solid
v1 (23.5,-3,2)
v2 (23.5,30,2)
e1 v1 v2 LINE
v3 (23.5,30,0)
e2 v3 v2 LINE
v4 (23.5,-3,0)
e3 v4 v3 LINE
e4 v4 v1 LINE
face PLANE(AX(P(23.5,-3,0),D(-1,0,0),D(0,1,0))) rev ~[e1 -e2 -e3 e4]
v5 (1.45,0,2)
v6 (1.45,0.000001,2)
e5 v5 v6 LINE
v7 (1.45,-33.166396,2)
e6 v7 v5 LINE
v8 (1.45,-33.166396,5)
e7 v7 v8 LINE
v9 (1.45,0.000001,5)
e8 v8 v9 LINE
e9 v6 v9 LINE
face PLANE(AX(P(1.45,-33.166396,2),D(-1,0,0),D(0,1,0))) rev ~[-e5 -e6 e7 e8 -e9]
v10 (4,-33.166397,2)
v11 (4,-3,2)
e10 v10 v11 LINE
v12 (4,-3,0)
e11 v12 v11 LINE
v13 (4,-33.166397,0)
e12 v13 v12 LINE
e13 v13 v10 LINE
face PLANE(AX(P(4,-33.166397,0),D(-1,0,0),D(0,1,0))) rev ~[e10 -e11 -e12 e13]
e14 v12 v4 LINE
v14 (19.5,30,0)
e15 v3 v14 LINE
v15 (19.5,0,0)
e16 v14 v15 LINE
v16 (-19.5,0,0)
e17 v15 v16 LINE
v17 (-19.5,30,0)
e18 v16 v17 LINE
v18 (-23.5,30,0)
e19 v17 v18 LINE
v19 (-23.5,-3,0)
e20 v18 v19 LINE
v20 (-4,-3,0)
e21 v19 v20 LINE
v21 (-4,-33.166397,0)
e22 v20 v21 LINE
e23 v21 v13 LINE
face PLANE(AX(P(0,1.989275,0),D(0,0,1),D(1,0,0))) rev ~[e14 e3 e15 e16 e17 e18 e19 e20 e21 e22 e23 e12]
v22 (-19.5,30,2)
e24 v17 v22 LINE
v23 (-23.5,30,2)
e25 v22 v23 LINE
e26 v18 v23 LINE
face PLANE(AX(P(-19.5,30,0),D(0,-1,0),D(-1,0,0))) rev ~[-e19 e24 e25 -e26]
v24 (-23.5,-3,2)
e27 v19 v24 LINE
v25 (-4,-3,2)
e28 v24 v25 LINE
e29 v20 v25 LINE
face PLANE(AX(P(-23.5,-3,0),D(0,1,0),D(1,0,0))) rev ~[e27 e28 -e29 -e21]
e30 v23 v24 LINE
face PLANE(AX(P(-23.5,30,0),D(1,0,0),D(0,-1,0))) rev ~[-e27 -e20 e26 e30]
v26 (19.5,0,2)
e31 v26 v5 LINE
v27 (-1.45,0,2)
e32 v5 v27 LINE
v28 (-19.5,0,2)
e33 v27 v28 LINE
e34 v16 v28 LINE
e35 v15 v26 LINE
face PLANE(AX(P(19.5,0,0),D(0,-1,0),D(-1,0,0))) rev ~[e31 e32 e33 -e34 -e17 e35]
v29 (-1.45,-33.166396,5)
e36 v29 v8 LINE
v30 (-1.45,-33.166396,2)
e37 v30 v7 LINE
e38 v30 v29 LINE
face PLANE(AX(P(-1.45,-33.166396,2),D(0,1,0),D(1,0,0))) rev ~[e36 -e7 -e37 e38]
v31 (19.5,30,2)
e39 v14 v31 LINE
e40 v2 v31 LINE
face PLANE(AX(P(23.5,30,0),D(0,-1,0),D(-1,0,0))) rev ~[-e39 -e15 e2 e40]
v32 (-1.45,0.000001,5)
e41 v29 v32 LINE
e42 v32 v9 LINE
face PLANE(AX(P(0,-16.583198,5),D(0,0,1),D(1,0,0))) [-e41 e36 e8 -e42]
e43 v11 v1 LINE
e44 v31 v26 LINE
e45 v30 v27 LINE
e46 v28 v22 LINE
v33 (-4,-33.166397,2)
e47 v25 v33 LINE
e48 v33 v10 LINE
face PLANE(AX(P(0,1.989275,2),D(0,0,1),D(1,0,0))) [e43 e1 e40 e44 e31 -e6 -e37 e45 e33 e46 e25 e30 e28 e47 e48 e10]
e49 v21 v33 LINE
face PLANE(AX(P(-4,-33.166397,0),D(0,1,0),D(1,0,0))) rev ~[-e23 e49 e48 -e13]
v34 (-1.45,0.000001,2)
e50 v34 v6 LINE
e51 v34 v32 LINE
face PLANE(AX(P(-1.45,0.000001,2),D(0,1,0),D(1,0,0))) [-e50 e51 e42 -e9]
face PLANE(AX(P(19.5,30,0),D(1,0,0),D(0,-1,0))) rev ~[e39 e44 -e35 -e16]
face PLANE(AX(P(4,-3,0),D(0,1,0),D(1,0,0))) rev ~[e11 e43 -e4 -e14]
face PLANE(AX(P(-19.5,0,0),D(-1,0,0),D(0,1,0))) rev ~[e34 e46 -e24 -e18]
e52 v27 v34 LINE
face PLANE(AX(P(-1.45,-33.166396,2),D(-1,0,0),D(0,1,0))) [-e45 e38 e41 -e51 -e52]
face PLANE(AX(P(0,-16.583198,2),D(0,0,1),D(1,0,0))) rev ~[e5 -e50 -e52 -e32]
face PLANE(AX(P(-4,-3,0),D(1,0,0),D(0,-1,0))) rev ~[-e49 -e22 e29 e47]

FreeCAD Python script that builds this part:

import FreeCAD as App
import Part
import Sketcher
from FreeCAD import Vector
Q = App.Units.Quantity

doc = App.newDocument("Part")
body = doc.addObject("PartDesign::Body", "Body")

sketch1 = doc.addObject("Sketcher::SketchObject", "Sketch")
body.addObject(sketch1)
sketch1.AttachmentSupport = (doc.XY_Plane, [""])
sketch1.MapMode = "FlatFace"
sketch1.addGeometry(Part.LineSegment(Vector(-19.5, 0, 0), Vector(-19.5, 30, 0)), False)
sketch1.addGeometry(Part.LineSegment(Vector(-19.5, 30, 0), Vector(-23.5, 30, 0)), False)
sketch1.addGeometry(Part.LineSegment(Vector(-23.5, 30, 0), Vector(-23.5, -3, 0)), False)
sketch1.addGeometry(Part.LineSegment(Vector(-23.5, -3, 0), Vector(-4, -3, 0)), False)
sketch1.addGeometry(Part.LineSegment(Vector(-4, -3, 0), Vector(-4, -33.166397, 0)), False)
sketch1.addGeometry(Part.LineSegment(Vector(-4, -33.166397, 0), Vector(4, -33.166397, 0)), False)
sketch1.addGeometry(Part.LineSegment(Vector(4, -33.166397, 0), Vector(4, -3, 0)), False)
sketch1.addGeometry(Part.LineSegment(Vector(4, -3, 0), Vector(23.5, -3, 0)), False)
sketch1.addGeometry(Part.LineSegment(Vector(23.5, -3, 0), Vector(23.5, 30, 0)), False)
sketch1.addGeometry(Part.LineSegment(Vector(23.5, 30, 0), Vector(19.5, 30, 0)), False)
sketch1.addGeometry(Part.LineSegment(Vector(19.5, 30, 0), Vector(19.5, 0, 0)), False)
sketch1.addGeometry(Part.LineSegment(Vector(19.5, 0, 0), Vector(-19.5, 0, 0)), False)
sketch1.addConstraint(Sketcher.Constraint("Coincident", 0, 2, 1, 1))
sketch1.addConstraint(Sketcher.Constraint("Coincident", 1, 2, 2, 1))
sketch1.addConstraint(Sketcher.Constraint("Coincident", 2, 2, 3, 1))
sketch1.addConstraint(Sketcher.Constraint("Coincident", 3, 2, 4, 1))
sketch1.addConstraint(Sketcher.Constraint("Coincident", 4, 2, 5, 1))
sketch1.addConstraint(Sketcher.Constraint("Coincident", 5, 2, 6, 1))
sketch1.addConstraint(Sketcher.Constraint("Coincident", 6, 2, 7, 1))
sketch1.addConstraint(Sketcher.Constraint("Coincident", 7, 2, 8, 1))
sketch1.addConstraint(Sketcher.Constraint("Coincident", 8, 2, 9, 1))
sketch1.addConstraint(Sketcher.Constraint("Coincident", 9, 2, 10, 1))
sketch1.addConstraint(Sketcher.Constraint("Coincident", 10, 2, 11, 1))
sketch1.addConstraint(Sketcher.Constraint("Coincident", 11, 2, 0, 1))
sketch1.addConstraint(Sketcher.Constraint("Vertical", 0))
sketch1.addConstraint(Sketcher.Constraint("Horizontal", 1))
sketch1.addConstraint(Sketcher.Constraint("Vertical", 2))
sketch1.addConstraint(Sketcher.Constraint("Horizontal", 3))
sketch1.addConstraint(Sketcher.Constraint("Vertical", 4))
sketch1.addConstraint(Sketcher.Constraint("Horizontal", 5))
sketch1.addConstraint(Sketcher.Constraint("Vertical", 6))
sketch1.addConstraint(Sketcher.Constraint("Horizontal", 7))
sketch1.addConstraint(Sketcher.Constraint("Vertical", 8))
sketch1.addConstraint(Sketcher.Constraint("Horizontal", 9))
sketch1.addConstraint(Sketcher.Constraint("Vertical", 10))
sketch1.addConstraint(Sketcher.Constraint("Horizontal", 11))
sketch1.addConstraint(Sketcher.Constraint("Symmetric", 10, 2, 11, 2, -1, 1))
sketch1.addConstraint(Sketcher.Constraint("Symmetric", 3, 2, 6, 2, -2))
sketch1.addConstraint(Sketcher.Constraint("Symmetric", 1, 2, 8, 2, -2))
sketch1.addConstraint(Sketcher.Constraint("DistanceX", 1, 2, 1, 1, Q("4 mm")))
sketch1.addConstraint(Sketcher.Constraint("DistanceX", 5, 1, 5, 2, Q("8 mm")))
sketch1.addConstraint(Sketcher.Constraint("DistanceX", 11, 2, 11, 1, Q("39 mm")))
sketch1.addConstraint(Sketcher.Constraint("DistanceY", 0, 1, 0, 2, Q("30 mm")))
sketch1.addConstraint(Sketcher.Constraint("DistanceY", 2, 2, 2, 1, Q("33 mm")))
sketch1.addConstraint(Sketcher.Constraint("DistanceY", 4, 2, 4, 1, Q("30.166397 mm")))
pad1 = doc.addObject("PartDesign::Pad", "Pad")
body.addObject(pad1)
pad1.Profile = sketch1
pad1.Length = 2

sketch2 = doc.addObject("Sketcher::SketchObject", "Sketch001")
body.addObject(sketch2)
sketch2.AttachmentSupport = (doc.XY_Plane, [""])
sketch2.MapMode = "FlatFace"
sketch2.AttachmentOffset = App.Placement(Vector(0, 0, 2), App.Rotation())
sketch2.addGeometry(Part.LineSegment(Vector(-1.45, 0, 0), Vector(-1.45, -33.166396, 0)), False)
sketch2.addGeometry(Part.LineSegment(Vector(-1.45, -33.166396, 0), Vector(1.45, -33.166396, 0)), False)
sketch2.addGeometry(Part.LineSegment(Vector(1.45, -33.166396, 0), Vector(1.45, 0, 0)), False)
sketch2.addGeometry(Part.LineSegment(Vector(1.45, 0, 0), Vector(-1.45, 0, 0)), False)
sketch2.addConstraint(Sketcher.Constraint("Coincident", 0, 2, 1, 1))
sketch2.addConstraint(Sketcher.Constraint("Coincident", 1, 2, 2, 1))
sketch2.addConstraint(Sketcher.Constraint("Coincident", 2, 2, 3, 1))
sketch2.addConstraint(Sketcher.Constraint("Coincident", 3, 2, 0, 1))
sketch2.addConstraint(Sketcher.Constraint("Vertical", 0))
sketch2.addConstraint(Sketcher.Constraint("Horizontal", 1))
sketch2.addConstraint(Sketcher.Constraint("Vertical", 2))
sketch2.addConstraint(Sketcher.Constraint("Horizontal", 3))
sketch2.addConstraint(Sketcher.Constraint("Symmetric", 2, 2, 3, 2, -1, 1))
sketch2.addConstraint(Sketcher.Constraint("DistanceX", 1, 1, 1, 2, Q("2.9 mm")))
sketch2.addConstraint(Sketcher.Constraint("DistanceY", 0, 2, 0, 1, Q("33.166397 mm")))
pad2 = doc.addObject("PartDesign::Pad", "Pad001")
body.addObject(pad2)
pad2.Profile = sketch2
pad2.Length = 3

doc.recompute()
